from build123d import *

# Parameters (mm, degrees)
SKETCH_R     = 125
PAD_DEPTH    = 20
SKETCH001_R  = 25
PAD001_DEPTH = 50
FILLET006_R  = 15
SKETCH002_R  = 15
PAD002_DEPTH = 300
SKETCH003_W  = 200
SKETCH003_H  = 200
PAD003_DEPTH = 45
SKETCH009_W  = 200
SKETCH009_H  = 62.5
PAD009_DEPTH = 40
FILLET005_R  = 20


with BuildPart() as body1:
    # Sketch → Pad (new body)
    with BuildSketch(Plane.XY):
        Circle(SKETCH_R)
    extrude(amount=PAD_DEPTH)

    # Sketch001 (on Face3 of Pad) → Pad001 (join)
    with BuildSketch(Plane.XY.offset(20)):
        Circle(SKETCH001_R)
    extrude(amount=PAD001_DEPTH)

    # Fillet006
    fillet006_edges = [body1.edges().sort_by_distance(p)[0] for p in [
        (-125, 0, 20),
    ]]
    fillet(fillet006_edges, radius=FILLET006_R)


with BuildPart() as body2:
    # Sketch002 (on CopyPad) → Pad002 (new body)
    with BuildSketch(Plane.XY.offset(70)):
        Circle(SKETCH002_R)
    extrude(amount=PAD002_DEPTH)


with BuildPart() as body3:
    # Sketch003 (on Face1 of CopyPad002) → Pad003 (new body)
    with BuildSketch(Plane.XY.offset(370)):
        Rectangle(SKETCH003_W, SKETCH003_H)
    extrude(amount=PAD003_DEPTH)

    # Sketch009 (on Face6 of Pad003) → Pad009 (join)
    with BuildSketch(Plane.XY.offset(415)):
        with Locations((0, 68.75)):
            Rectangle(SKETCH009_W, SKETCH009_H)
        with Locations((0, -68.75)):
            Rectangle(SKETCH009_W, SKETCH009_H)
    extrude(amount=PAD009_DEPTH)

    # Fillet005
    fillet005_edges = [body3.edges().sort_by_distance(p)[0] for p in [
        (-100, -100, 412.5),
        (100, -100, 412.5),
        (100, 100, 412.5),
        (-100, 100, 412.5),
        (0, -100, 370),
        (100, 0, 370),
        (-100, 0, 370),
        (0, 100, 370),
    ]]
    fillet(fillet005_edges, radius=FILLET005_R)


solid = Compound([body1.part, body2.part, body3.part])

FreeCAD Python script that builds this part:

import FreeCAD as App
import Part
import Sketcher


def edges_at(feature, points):
    """Names of the edges that pass closest to the given points."""
    edges = feature.Shape.Edges
    near = lambda p: min(range(len(edges)), key=lambda i: edges[i].distToShape(Part.Vertex(*p))[0])
    return sorted({f"Edge{near(p) + 1}" for p in points})


def add_polygon(sketch, points):
    """Adds a closed chain of lines whose ends are joined by coincident constraints."""
    first, n = sketch.GeometryCount, len(points)
    for a, b in zip(points, points[1:] + points[:1]):
        sketch.addGeometry(Part.LineSegment(App.Vector(*a, 0), App.Vector(*b, 0)), False)
    for i in range(n):
        sketch.addConstraint(Sketcher.Constraint("Coincident", first + i, 2, first + (i + 1) % n, 1))

doc = App.newDocument("Part")
body = doc.addObject("PartDesign::Body", "Body")

# Sketch on XY plane
sketch1 = body.newObject("Sketcher::SketchObject", "Sketch")
sketch1.AttachmentSupport = (doc.getObject("XY_Plane"), [""])
sketch1.MapMode = "FlatFace"
sketch1.addGeometry(Part.Circle(App.Vector(0, 0, 0), App.Vector(0, 0, 1), 125), False)
sketch1.addConstraint(Sketcher.Constraint("Coincident", 0, 3, -1, 1))
sketch1.addConstraint(Sketcher.Constraint("Diameter", 0, 250.0))
pad1 = body.newObject("PartDesign::Pad", "Pad")
pad1.Profile = sketch1
pad1.Length = 20

# Sketch on XY plane
sketch2 = body.newObject("Sketcher::SketchObject", "Sketch001")
sketch2.AttachmentSupport = (doc.getObject("XY_Plane"), [""])
sketch2.MapMode = "FlatFace"
sketch2.AttachmentOffset = App.Placement(App.Vector(0, 0, 20), App.Rotation())
sketch2.addGeometry(Part.Circle(App.Vector(0, 0, 0), App.Vector(0, 0, 1), 25), False)
sketch2.addConstraint(Sketcher.Constraint("Coincident", 0, 3, -1, 1))
sketch2.addConstraint(Sketcher.Constraint("Diameter", 0, 50.0))
pad2 = body.newObject("PartDesign::Pad", "Pad001")
pad2.Profile = sketch2
pad2.Length = 50
doc.recompute()

fillet = body.newObject("PartDesign::Fillet", "Fillet")
fillet.Base = (pad2, edges_at(pad2, [(-125, 0, 20)]))
fillet.Radius = 15
body2 = doc.addObject("PartDesign::Body", "Body001")

# Sketch on XY plane
sketch3 = body2.newObject("Sketcher::SketchObject", "Sketch002")
sketch3.AttachmentSupport = (doc.getObject("XY_Plane001"), [""])
sketch3.MapMode = "FlatFace"
sketch3.AttachmentOffset = App.Placement(App.Vector(0, 0, 70), App.Rotation())
sketch3.addGeometry(Part.Circle(App.Vector(0, 0, 0), App.Vector(0, 0, 1), 15), False)
sketch3.addConstraint(Sketcher.Constraint("Coincident", 0, 3, -1, 1))
sketch3.addConstraint(Sketcher.Constraint("Diameter", 0, 30.0))
pad3 = body2.newObject("PartDesign::Pad", "Pad002")
pad3.Profile = sketch3
pad3.Length = 300
body3 = doc.addObject("PartDesign::Body", "Body002")

# Sketch on XY plane
sketch4 = body3.newObject("Sketcher::SketchObject", "Sketch003")
sketch4.AttachmentSupport = (doc.getObject("XY_Plane002"), [""])
sketch4.MapMode = "FlatFace"
sketch4.AttachmentOffset = App.Placement(App.Vector(0, 0, 370), App.Rotation())
add_polygon(sketch4, [(-100, 100), (-100, -100), (100, -100), (100, 100)])  # lines 0-3
sketch4.addConstraint(Sketcher.Constraint("Vertical", 0))
sketch4.addConstraint(Sketcher.Constraint("Horizontal", 1))
sketch4.addConstraint(Sketcher.Constraint("Vertical", 2))
sketch4.addConstraint(Sketcher.Constraint("Horizontal", 3))
sketch4.addConstraint(Sketcher.Constraint("Symmetric", 0, 2, 2, 2, -1, 1))
sketch4.addConstraint(Sketcher.Constraint("Equal", 3, 0))
sketch4.addConstraint(Sketcher.Constraint("DistanceX", 1, 1, 1, 2, 200.0))
pad4 = body3.newObject("PartDesign::Pad", "Pad003")
pad4.Profile = sketch4
pad4.Length = 45

# Sketch on XY plane
sketch5 = body3.newObject("Sketcher::SketchObject", "Sketch004")
sketch5.AttachmentSupport = (doc.getObject("XY_Plane002"), [""])
sketch5.MapMode = "FlatFace"
sketch5.AttachmentOffset = App.Placement(App.Vector(0, 0, 415), App.Rotation())
add_polygon(sketch5, [(-100, 100), (-100, 38), (100, 38), (100, 100)])  # lines 0-3
add_polygon(sketch5, [(-100, -38), (-100, -100), (100, -100), (100, -38)])  # lines 4-7
sketch5.addConstraint(Sketcher.Constraint("Vertical", 0))
sketch5.addConstraint(Sketcher.Constraint("Horizontal", 1))
sketch5.addConstraint(Sketcher.Constraint("Vertical", 2))
sketch5.addConstraint(Sketcher.Constraint("Horizontal", 3))
sketch5.addConstraint(Sketcher.Constraint("Vertical", 4))
sketch5.addConstraint(Sketcher.Constraint("Horizontal", 5))
sketch5.addConstraint(Sketcher.Constraint("Vertical", 6))
sketch5.addConstraint(Sketcher.Constraint("Horizontal", 7))
sketch5.addConstraint(Sketcher.Constraint("Symmetric", 2, 2, 4, 2, -1, 1))
sketch5.addConstraint(Sketcher.Constraint("Symmetric", 0, 2, 6, 2, -1, 1))
sketch5.addConstraint(Sketcher.Constraint("Vertical", 3, 2, 4, 2))
sketch5.addConstraint(Sketcher.Constraint("DistanceX", 1, 1, 1, 2, 200.0))
sketch5.addConstraint(Sketcher.Constraint("DistanceY", 0, 2, 0, 1, 62.5))
sketch5.addConstraint(Sketcher.Constraint("DistanceY", -1, 1, 2, 2, 100.0))
pad5 = body3.newObject("PartDesign::Pad", "Pad004")
pad5.Profile = sketch5
pad5.Length = 40
doc.recompute()

fillet2 = body3.newObject("PartDesign::Fillet", "Fillet001")
fillet2.Base = (pad5, edges_at(pad5, [
    (-100, -100, 412.5),
    (100, -100, 412.5),
    (100, 100, 412.5),
    (-100, 100, 412.5),
    (0, -100, 370),
    (100, 0, 370),
    (-100, 0, 370),
    (0, 100, 370),
]))
fillet2.Radius = 20

doc.recompute()
